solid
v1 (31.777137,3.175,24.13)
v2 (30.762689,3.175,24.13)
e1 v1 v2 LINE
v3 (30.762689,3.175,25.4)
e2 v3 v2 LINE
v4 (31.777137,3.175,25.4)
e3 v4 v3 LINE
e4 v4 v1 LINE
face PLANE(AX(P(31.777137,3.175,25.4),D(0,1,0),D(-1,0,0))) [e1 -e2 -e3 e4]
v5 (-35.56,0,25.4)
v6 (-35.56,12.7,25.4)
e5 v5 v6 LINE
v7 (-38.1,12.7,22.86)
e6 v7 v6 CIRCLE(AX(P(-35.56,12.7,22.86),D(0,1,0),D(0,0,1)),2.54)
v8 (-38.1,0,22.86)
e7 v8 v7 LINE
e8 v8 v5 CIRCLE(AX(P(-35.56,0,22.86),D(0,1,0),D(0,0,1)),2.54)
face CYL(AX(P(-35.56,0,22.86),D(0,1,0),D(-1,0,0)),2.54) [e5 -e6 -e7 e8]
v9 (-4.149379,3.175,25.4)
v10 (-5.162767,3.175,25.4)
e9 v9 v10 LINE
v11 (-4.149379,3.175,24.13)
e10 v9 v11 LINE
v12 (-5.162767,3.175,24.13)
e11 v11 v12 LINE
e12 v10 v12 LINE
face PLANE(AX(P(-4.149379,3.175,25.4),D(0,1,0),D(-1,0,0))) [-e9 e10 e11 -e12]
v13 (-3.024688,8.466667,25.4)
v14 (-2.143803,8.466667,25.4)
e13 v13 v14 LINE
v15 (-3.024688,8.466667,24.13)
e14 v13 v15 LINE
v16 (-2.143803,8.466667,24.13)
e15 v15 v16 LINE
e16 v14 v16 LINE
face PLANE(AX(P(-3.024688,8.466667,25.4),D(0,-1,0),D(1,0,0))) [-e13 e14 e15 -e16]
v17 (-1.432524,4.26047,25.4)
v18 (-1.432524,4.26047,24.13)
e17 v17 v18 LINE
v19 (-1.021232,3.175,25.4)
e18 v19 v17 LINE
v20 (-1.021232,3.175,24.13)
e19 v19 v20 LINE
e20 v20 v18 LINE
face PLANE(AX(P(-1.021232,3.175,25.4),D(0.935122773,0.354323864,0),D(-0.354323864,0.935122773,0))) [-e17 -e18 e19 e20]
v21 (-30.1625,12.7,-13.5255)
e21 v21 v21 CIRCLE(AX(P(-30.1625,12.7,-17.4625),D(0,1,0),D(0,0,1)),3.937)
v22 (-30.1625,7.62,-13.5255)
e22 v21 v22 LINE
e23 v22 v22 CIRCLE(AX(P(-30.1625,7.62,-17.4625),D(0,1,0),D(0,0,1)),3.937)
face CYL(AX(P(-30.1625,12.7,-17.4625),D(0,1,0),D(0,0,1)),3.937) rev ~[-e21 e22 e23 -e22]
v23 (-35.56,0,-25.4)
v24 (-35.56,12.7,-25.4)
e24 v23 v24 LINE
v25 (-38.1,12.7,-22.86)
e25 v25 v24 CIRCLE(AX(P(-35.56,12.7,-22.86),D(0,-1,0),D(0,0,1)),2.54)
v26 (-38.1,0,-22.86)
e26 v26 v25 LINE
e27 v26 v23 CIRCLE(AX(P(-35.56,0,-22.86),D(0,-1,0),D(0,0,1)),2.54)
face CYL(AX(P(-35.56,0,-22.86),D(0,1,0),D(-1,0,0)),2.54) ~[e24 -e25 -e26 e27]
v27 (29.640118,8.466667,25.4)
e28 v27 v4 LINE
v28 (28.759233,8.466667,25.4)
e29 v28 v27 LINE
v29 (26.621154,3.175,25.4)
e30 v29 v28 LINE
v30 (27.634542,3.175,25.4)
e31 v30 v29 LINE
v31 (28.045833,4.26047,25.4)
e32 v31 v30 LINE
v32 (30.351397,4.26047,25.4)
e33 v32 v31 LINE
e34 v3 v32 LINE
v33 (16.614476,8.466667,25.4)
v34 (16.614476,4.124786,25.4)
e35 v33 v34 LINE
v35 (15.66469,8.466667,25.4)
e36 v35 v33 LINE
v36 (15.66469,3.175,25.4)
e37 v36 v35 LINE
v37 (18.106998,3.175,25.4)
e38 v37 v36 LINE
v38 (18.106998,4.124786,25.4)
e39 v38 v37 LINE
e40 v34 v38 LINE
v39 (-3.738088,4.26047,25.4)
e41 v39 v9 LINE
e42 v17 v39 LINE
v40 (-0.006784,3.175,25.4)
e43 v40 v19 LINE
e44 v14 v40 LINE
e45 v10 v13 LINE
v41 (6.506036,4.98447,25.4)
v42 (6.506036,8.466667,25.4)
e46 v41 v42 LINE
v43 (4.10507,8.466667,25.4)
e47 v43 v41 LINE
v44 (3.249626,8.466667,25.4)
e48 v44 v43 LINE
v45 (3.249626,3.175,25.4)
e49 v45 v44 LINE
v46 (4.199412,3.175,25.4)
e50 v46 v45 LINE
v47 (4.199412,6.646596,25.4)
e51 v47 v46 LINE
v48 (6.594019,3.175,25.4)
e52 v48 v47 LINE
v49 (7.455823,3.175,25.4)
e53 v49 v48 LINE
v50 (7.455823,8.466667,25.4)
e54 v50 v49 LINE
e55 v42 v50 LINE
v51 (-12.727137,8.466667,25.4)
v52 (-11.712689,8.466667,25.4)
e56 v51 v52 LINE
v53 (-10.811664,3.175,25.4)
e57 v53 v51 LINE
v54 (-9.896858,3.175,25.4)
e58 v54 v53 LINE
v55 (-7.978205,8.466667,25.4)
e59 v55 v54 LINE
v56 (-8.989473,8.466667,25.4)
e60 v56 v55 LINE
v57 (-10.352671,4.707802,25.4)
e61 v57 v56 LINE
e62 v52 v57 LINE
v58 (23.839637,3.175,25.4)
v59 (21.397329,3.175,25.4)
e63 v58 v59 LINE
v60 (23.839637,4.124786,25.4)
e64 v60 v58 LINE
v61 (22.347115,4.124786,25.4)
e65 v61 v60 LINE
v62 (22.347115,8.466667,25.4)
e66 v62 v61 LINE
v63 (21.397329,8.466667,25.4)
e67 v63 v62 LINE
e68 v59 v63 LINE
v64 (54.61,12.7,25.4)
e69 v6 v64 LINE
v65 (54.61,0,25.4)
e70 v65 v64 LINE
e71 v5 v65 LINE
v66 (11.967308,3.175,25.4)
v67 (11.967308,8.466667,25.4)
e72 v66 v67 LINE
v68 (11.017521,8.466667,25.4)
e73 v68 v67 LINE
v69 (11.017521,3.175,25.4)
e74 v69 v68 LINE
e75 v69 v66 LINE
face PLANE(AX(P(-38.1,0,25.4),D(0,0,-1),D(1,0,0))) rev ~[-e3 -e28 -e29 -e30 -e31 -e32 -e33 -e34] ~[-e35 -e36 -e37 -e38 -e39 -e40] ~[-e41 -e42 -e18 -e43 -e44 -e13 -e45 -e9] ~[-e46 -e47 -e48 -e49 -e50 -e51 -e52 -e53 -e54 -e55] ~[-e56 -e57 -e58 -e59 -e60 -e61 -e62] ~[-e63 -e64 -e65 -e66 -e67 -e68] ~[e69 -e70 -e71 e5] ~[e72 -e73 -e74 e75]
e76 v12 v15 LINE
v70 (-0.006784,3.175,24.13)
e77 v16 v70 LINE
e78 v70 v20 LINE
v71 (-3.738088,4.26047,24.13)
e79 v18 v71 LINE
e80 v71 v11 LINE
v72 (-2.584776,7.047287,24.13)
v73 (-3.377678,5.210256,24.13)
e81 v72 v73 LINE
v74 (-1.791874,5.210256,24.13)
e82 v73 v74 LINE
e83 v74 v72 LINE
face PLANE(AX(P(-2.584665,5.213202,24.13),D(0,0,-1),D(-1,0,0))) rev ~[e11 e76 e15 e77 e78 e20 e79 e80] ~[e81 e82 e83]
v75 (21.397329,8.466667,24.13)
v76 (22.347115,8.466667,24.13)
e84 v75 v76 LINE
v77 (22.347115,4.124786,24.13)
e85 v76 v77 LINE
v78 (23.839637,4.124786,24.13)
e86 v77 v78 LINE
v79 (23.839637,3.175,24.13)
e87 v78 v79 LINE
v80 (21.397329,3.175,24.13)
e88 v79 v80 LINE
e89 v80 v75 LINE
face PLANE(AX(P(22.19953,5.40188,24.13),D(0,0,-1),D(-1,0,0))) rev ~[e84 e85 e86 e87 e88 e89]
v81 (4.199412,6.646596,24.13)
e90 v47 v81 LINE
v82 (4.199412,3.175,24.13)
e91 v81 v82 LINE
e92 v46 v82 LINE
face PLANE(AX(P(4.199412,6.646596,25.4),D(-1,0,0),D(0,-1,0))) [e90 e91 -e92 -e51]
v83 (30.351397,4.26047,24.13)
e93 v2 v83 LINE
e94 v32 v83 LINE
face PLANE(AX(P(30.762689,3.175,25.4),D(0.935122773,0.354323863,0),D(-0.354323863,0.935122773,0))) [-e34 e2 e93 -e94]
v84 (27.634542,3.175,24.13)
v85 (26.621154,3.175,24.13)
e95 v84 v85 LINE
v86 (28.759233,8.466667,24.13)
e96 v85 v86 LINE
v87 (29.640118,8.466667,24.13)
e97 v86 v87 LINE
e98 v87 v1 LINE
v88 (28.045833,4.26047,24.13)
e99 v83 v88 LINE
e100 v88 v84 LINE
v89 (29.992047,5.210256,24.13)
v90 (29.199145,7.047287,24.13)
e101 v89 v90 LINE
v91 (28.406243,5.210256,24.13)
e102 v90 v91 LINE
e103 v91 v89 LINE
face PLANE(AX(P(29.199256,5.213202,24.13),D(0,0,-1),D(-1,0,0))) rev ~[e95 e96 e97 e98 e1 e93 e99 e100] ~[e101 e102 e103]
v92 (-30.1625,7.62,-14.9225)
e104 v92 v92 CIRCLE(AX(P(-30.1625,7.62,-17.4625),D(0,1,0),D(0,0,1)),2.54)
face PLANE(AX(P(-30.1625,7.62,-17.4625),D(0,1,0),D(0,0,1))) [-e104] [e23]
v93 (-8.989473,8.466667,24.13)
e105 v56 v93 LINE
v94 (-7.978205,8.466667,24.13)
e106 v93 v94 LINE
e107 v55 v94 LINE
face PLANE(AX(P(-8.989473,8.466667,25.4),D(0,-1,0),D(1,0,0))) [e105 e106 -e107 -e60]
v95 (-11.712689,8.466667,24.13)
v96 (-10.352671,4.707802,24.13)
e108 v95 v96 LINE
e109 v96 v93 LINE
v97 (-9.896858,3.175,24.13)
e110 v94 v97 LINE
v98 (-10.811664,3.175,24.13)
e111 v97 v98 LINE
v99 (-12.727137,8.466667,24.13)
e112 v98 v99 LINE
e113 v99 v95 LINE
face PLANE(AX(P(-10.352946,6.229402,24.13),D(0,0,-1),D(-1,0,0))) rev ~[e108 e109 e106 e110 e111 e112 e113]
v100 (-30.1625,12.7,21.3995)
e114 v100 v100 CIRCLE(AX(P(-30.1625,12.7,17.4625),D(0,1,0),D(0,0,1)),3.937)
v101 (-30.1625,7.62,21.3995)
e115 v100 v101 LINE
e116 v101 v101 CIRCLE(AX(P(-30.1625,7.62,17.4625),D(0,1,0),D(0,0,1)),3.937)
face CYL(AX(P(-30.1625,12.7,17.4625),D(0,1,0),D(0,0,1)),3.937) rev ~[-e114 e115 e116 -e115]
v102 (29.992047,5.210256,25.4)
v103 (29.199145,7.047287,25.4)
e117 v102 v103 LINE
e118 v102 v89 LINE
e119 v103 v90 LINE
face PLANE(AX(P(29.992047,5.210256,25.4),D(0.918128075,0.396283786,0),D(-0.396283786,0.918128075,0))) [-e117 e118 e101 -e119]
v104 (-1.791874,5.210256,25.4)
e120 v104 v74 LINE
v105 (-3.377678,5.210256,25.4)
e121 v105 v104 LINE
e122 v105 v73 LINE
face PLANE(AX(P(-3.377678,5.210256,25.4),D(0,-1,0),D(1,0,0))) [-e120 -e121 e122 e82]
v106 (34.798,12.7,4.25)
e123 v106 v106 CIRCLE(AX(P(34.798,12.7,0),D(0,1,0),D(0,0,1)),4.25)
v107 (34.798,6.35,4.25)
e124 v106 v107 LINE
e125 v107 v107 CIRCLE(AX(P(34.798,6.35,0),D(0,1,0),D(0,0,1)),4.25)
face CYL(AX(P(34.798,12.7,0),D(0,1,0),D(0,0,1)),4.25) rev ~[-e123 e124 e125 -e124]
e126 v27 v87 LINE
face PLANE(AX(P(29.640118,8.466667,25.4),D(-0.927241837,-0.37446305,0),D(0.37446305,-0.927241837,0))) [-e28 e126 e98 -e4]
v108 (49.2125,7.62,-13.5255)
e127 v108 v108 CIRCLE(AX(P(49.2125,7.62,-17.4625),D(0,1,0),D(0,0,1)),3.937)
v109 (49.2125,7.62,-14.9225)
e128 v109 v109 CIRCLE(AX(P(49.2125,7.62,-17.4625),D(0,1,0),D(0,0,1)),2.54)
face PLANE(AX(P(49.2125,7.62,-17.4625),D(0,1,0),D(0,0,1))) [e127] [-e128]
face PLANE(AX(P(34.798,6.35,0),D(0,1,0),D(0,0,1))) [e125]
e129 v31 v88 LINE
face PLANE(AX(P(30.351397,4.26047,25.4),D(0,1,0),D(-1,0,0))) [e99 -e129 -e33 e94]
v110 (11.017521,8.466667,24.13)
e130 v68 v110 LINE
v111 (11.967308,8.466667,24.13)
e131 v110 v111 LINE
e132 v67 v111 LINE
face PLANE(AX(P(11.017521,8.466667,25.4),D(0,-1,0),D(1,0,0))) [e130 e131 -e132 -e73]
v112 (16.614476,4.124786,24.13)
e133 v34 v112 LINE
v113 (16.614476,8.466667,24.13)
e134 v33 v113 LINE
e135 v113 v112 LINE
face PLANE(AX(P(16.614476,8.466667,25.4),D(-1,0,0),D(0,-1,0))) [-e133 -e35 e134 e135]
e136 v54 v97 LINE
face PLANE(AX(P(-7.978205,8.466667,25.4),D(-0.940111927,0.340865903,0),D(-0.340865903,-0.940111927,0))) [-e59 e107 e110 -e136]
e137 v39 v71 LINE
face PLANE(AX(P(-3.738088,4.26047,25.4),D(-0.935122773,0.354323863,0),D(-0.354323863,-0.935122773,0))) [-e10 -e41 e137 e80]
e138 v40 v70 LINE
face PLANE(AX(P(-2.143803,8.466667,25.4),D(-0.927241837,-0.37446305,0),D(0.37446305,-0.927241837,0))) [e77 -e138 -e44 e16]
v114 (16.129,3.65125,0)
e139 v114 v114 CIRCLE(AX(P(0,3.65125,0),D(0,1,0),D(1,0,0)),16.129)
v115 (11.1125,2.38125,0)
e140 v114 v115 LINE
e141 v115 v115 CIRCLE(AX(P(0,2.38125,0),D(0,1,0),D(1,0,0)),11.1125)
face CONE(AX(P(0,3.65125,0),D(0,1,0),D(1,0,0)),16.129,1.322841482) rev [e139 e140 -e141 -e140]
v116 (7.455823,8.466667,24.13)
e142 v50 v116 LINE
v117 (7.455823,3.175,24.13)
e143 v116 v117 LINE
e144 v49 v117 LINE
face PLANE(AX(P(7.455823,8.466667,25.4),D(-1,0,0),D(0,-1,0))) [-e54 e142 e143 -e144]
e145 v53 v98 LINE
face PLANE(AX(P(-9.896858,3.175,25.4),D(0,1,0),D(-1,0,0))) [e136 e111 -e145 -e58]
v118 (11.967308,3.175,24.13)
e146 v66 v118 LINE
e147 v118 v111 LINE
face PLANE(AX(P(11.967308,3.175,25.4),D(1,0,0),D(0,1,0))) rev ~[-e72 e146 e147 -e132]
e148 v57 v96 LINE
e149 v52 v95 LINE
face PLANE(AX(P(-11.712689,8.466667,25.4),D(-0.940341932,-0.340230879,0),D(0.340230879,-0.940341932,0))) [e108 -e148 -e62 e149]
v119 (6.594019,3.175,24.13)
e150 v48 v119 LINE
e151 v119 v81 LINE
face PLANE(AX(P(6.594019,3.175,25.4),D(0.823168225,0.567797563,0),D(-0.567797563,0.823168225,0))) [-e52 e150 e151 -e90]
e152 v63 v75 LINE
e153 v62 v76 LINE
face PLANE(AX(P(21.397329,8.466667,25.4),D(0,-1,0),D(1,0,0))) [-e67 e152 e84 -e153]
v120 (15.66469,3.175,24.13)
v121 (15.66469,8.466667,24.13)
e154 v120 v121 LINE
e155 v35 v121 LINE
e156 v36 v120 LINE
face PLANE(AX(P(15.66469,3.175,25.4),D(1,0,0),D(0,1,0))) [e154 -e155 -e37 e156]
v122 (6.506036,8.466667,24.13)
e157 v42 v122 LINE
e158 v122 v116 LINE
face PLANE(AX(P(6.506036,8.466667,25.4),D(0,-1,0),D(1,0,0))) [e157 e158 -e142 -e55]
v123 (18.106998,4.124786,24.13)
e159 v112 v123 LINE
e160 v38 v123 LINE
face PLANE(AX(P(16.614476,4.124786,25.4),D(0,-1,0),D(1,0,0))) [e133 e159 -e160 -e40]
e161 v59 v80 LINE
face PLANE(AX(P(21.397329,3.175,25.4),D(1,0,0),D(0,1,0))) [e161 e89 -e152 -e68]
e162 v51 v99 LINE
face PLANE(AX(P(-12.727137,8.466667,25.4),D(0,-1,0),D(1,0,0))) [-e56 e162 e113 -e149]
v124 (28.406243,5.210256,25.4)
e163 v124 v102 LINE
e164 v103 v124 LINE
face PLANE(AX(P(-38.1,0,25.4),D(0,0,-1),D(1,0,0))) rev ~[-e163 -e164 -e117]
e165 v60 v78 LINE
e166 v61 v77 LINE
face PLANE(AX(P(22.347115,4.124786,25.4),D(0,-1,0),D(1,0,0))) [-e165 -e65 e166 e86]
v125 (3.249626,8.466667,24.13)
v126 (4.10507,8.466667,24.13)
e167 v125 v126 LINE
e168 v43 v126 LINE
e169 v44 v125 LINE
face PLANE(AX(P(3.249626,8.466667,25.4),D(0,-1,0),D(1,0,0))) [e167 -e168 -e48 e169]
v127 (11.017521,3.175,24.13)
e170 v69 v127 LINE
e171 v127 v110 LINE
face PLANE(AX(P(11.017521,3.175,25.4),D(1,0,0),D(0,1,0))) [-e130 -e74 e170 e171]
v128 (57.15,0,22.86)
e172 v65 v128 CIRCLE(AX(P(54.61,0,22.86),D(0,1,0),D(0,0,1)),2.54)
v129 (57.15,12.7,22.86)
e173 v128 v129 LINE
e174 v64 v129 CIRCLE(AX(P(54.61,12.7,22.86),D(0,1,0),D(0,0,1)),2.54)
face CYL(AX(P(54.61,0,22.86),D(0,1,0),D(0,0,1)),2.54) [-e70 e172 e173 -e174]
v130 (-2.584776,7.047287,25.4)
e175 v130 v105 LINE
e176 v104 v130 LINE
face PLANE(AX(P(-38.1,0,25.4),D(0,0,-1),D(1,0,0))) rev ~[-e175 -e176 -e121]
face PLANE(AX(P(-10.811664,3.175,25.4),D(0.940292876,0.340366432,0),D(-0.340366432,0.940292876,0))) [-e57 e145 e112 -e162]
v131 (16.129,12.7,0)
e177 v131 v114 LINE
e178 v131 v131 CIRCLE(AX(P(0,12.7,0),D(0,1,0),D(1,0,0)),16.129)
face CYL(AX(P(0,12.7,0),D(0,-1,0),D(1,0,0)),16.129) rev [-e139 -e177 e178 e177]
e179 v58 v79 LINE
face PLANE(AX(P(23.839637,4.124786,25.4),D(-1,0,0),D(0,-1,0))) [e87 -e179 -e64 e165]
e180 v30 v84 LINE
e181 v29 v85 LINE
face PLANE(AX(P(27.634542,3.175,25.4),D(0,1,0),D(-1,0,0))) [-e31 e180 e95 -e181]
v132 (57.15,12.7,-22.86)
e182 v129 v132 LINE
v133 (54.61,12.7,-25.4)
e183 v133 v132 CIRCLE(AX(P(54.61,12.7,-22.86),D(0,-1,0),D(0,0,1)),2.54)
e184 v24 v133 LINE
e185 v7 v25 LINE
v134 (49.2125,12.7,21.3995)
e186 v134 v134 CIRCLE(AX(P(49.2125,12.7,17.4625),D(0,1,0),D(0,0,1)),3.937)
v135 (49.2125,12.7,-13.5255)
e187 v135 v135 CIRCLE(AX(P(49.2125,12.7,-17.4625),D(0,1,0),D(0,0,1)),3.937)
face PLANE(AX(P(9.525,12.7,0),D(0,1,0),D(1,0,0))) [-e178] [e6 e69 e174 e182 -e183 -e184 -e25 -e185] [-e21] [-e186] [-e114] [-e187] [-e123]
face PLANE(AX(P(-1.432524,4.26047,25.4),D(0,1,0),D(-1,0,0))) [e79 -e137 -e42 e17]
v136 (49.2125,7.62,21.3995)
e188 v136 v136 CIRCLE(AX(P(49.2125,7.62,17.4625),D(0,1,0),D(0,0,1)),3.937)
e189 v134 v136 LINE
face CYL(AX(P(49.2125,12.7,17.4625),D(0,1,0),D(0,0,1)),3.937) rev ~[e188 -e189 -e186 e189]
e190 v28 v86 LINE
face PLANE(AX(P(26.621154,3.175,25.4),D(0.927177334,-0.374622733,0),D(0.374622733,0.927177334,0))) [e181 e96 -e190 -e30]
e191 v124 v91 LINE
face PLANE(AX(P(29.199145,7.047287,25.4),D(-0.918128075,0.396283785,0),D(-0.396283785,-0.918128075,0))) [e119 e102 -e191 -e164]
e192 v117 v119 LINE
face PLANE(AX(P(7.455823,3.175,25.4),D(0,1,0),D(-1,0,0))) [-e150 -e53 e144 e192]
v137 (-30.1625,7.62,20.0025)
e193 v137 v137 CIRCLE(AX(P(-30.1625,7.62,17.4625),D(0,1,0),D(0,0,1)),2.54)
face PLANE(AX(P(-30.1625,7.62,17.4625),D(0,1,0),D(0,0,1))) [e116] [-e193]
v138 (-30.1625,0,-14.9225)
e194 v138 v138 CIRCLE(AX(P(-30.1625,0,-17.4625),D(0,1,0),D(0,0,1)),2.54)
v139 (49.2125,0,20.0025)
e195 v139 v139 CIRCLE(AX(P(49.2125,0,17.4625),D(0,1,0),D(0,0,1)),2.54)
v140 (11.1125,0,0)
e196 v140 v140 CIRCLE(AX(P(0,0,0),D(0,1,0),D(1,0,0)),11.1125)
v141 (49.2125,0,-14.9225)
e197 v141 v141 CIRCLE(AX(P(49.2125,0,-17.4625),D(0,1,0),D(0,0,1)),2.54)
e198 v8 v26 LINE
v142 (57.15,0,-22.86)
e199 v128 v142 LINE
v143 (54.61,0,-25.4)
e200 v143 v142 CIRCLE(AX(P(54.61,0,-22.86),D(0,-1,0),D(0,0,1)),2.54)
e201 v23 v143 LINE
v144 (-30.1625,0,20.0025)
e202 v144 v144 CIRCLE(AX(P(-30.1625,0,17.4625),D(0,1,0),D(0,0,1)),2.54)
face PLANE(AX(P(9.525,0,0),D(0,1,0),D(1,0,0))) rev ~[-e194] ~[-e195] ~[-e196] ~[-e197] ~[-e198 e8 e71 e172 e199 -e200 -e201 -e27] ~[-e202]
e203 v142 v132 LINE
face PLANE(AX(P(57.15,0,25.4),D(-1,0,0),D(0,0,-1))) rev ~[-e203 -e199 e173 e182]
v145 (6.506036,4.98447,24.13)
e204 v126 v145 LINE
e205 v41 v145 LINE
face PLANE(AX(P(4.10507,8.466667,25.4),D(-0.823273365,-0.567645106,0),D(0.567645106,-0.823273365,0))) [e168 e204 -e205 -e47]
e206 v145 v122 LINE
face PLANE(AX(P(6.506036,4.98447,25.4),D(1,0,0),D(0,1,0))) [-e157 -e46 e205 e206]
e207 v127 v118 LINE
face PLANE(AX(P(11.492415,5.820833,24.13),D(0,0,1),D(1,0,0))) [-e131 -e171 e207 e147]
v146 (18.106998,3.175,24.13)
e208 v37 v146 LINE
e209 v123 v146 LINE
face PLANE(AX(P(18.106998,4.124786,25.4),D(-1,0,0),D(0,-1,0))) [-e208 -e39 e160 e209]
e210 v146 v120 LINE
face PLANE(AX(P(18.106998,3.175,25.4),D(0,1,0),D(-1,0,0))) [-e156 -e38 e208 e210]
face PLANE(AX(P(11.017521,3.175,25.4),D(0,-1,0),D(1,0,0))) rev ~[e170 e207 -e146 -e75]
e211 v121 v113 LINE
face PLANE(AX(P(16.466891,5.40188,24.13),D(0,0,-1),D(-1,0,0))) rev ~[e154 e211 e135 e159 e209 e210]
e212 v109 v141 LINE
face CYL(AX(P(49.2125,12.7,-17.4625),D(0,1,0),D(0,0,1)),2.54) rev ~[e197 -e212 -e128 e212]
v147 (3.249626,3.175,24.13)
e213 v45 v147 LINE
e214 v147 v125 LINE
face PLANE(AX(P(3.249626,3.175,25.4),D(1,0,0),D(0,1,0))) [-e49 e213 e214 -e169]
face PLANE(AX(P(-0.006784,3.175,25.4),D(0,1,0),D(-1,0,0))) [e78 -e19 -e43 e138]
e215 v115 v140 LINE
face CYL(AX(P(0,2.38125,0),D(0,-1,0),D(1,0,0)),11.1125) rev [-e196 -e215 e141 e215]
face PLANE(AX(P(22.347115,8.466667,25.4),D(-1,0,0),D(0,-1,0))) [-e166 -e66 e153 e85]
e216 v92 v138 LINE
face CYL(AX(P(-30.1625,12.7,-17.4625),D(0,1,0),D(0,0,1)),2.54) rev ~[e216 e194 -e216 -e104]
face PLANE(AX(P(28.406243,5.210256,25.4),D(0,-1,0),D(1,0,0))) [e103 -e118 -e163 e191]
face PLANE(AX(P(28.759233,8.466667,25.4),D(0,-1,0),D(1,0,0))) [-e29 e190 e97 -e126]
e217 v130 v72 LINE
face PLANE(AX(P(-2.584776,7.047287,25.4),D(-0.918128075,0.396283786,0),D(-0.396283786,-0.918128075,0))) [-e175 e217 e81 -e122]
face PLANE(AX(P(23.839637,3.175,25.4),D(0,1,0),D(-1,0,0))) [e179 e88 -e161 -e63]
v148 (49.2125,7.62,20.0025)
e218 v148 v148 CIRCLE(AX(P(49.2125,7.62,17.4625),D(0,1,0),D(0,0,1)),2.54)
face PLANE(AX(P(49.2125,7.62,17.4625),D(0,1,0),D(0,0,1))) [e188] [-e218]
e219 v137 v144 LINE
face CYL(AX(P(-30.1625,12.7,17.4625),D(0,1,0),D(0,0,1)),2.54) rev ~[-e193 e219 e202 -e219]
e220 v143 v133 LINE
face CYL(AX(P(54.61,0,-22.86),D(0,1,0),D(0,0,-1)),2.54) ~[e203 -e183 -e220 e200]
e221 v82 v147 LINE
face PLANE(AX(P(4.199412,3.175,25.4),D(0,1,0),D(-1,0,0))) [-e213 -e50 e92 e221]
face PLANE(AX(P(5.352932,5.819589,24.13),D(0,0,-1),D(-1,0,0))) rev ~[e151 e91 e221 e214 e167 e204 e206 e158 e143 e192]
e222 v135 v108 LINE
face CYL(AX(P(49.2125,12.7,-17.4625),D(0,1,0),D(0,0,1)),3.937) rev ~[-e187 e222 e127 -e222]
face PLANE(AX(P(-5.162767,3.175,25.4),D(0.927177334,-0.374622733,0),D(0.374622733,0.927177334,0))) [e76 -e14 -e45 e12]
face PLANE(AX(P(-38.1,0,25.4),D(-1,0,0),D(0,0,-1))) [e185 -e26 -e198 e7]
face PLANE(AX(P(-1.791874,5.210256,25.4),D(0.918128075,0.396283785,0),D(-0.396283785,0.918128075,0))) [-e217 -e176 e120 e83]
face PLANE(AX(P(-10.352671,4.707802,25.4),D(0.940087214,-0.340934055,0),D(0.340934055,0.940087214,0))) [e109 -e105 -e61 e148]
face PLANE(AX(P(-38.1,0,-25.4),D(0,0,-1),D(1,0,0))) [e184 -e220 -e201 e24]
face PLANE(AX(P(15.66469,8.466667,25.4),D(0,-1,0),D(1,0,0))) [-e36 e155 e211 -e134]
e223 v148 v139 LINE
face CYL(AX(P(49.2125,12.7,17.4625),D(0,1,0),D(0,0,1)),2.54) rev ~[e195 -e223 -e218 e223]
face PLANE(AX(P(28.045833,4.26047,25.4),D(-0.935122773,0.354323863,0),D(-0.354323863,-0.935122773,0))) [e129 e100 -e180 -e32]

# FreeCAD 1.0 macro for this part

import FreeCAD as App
import Part
import Sketcher
Q = App.Units.Quantity


def edges_at(feature, points):
    """Names of the edges that pass closest to the given points."""
    edges = feature.Shape.Edges
    near = lambda p: min(range(len(edges)), key=lambda i: edges[i].distToShape(Part.Vertex(*p))[0])
    return sorted({f"Edge{near(p) + 1}" for p in points})

doc = App.newDocument("Part")
params = doc.addObject("Spreadsheet::Sheet", "Params")
for row, (alias, value) in enumerate([
    ("sketch1_height", "2 in"),
    ("sketch1_width", "3.75 in"),
    ("pad1_length", "0.5 in"),
    ("sketch2_diameter", "0.2 in"),
    ("fillet_radius", "0.1 in"),
    ("sketch3_height", "0.5 in"),
    ("sketch3_width", "0.635 in"),
    ("sketch3_width2", "0.4375 in"),
    ("sketch3_height2", "0.09375 in"),
    ("groove_angle", "360 deg"),
    ("pocket2_length", "0.25 in"),
    ("pocket3_length", "0.05 in"),
    ("sketch6_diameter", "0.31 in"),
    ("pocket4_length", "0.2 in"),
], start=1):
    params.set(f"A{row}", alias)
    params.set(f"B{row}", "=" + value)
    params.setAlias(f"B{row}", alias)

body = doc.addObject("PartDesign::Body", "Body")

# Sketch on XZ plane
sketch1 = doc.addObject("Sketcher::SketchObject", "Sketch")
body.addObject(sketch1)
sketch1.AttachmentSupport = (doc.XZ_Plane, [""])
sketch1.MapMode = "FlatFace"
sketch1.addGeometry([
    Part.LineSegment(App.Vector(-38.1, -25.4, 0), App.Vector(-38.1, 25.4, 0)),
    Part.LineSegment(App.Vector(-38.1, 25.4, 0), App.Vector(57.15, 25.4, 0)),
    Part.LineSegment(App.Vector(57.15, 25.4, 0), App.Vector(57.15, -25.4, 0)),
    Part.LineSegment(App.Vector(57.15, -25.4, 0), App.Vector(-38.1, -25.4, 0)),
], False)
sketch1.addConstraint([
    Sketcher.Constraint("Coincident", 0, 2, 1, 1),
    Sketcher.Constraint("Coincident", 1, 2, 2, 1),
    Sketcher.Constraint("Coincident", 2, 2, 3, 1),
    Sketcher.Constraint("Coincident", 3, 2, 0, 1),
    Sketcher.Constraint("Vertical", 0),
    Sketcher.Constraint("Horizontal", 1),
    Sketcher.Constraint("Vertical", 2),
    Sketcher.Constraint("Horizontal", 3),
    Sketcher.Constraint("DistanceY", 0, 1, 0, 2, Q("2 in")),
    Sketcher.Constraint("DistanceY", -1, 1, 0, 2, Q("1 in")),
    Sketcher.Constraint("DistanceX", 1, 1, 1, 2, Q("3.75 in")),
    Sketcher.Constraint("DistanceX", 0, 2, -1, 1, Q("1.5 in")),
])
sketch1.setExpression("Constraints[8]", "Params.sketch1_height")
sketch1.setExpression("Constraints[10]", "Params.sketch1_width")
pad1 = doc.addObject("PartDesign::Pad", "Pad")
body.addObject(pad1)
pad1.Profile = sketch1
pad1.setExpression("Length", "Params.pad1_length")
pad1.Reversed = True

# Sketch on XZ plane
sketch2 = doc.addObject("Sketcher::SketchObject", "Sketch001")
body.addObject(sketch2)
sketch2.AttachmentSupport = (doc.XZ_Plane, [""])
sketch2.MapMode = "FlatFace"
sketch2.AttachmentOffset = App.Placement(App.Vector(0, 0, -0.5 * 25.4), App.Rotation())
sketch2.addGeometry([
    Part.Circle(App.Vector(-30.1625, -17.4625, 0), App.Vector(0, 0, 1), 2.54),
    Part.Circle(App.Vector(49.2125, -17.4625, 0), App.Vector(0, 0, 1), 2.54),
    Part.Circle(App.Vector(49.2125, 17.4625, 0), App.Vector(0, 0, 1), 2.54),
    Part.Circle(App.Vector(-30.1625, 17.4625, 0), App.Vector(0, 0, 1), 2.54),
], False)
sketch2.addConstraint([
    Sketcher.Constraint("Equal", 0, 1),
    Sketcher.Constraint("Equal", 1, 2),
    Sketcher.Constraint("Equal", 2, 3),
    Sketcher.Constraint("Symmetric", 1, 3, 2, 3, -1),
    Sketcher.Constraint("Symmetric", 0, 3, 3, 3, -1),
    Sketcher.Constraint("Horizontal", 0, 3, 1, 3),
    Sketcher.Constraint("Diameter", 0, Q("0.2 in")),
    Sketcher.Constraint("DistanceX", 0, 3, -1, 1, Q("1.1875 in")),
    Sketcher.Constraint("DistanceY", 0, 3, -1, 1, Q("0.6875 in")),
    Sketcher.Constraint("DistanceX", -1, 1, 1, 3, Q("1.9375 in")),
])
sketch2.setExpression("Constraints[6]", "Params.sketch2_diameter")
pocket1 = doc.addObject("PartDesign::Pocket", "Pocket")
body.addObject(pocket1)
pocket1.Profile = sketch2
pocket1.Type = "ThroughAll"
pocket1.Reversed = True
doc.recompute()

fillet = doc.addObject("PartDesign::Fillet", "Fillet")
body.addObject(fillet)
fillet.Base = (pocket1, edges_at(pocket1, [
    (57.15, 6.35, 25.4),
    (-38.1, 6.35, 25.4),
    (-38.1, 6.35, -25.4),
    (57.15, 6.35, -25.4),
]))
fillet.setExpression("Radius", "Params.fillet_radius")

# Sketch on XY plane
sketch3 = doc.addObject("Sketcher::SketchObject", "Sketch002")
body.addObject(sketch3)
sketch3.AttachmentSupport = (doc.XY_Plane, [""])
sketch3.MapMode = "FlatFace"
sketch3.addGeometry([
    Part.LineSegment(App.Vector(0, 0, 0), App.Vector(0, 12.7, 0)),  # 0
    Part.LineSegment(App.Vector(0, 12.7, 0), App.Vector(-16.129, 12.7, 0)),  # 1
    Part.LineSegment(App.Vector(-16.129, 12.7, 0), App.Vector(-16.129, 3.65125, 0)),  # 2
    Part.LineSegment(App.Vector(-16.129, 3.65125, 0), App.Vector(-11.1125, 2.38125, 0)),  # 3
    Part.LineSegment(App.Vector(-11.1125, 2.38125, 0), App.Vector(-11.1125, 0, 0)),  # 4
    Part.LineSegment(App.Vector(-11.1125, 0, 0), App.Vector(0, 0, 0)),  # 5
], False)
sketch3.addConstraint([
    Sketcher.Constraint("Coincident", 0, 2, 1, 1),
    Sketcher.Constraint("Coincident", 1, 2, 2, 1),
    Sketcher.Constraint("Coincident", 2, 2, 3, 1),
    Sketcher.Constraint("Coincident", 3, 2, 4, 1),
    Sketcher.Constraint("Coincident", 4, 2, 5, 1),
    Sketcher.Constraint("Coincident", 5, 2, 0, 1),
    Sketcher.Constraint("Vertical", 0),
    Sketcher.Constraint("Horizontal", 1),
    Sketcher.Constraint("Vertical", 2),
    Sketcher.Constraint("Vertical", 4),
    Sketcher.Constraint("Horizontal", 5),
    Sketcher.Constraint("Coincident", 5, 2, -1, 1),
    Sketcher.Constraint("DistanceY", 0, 1, 0, 2, Q("0.5 in")),
    Sketcher.Constraint("DistanceX", 1, 2, 1, 1, Q("0.635 in")),
    Sketcher.Constraint("DistanceX", 5, 1, 5, 2, Q("0.4375 in")),
    Sketcher.Constraint("DistanceY", 4, 2, 4, 1, Q("0.09375 in")),
    Sketcher.Constraint("DistanceY", 3, 2, 2, 2, Q("0.05 in")),
])
sketch3.setExpression("Constraints[12]", "Params.sketch3_height")
sketch3.setExpression("Constraints[13]", "Params.sketch3_width")
sketch3.setExpression("Constraints[14]", "Params.sketch3_width2")
sketch3.setExpression("Constraints[15]", "Params.sketch3_height2")
groove = doc.addObject("PartDesign::Groove", "Groove")
body.addObject(groove)
groove.Profile = sketch3
groove.ReferenceAxis = (sketch3, ["V_Axis"])
groove.setExpression("Angle", "Params.groove_angle")

# Sketch on XZ plane
sketch4 = doc.addObject("Sketcher::SketchObject", "Sketch003")
body.addObject(sketch4)
sketch4.AttachmentSupport = (doc.XZ_Plane, [""])
sketch4.MapMode = "FlatFace"
sketch4.AttachmentOffset = App.Placement(App.Vector(0, 0, -0.5 * 25.4), App.Rotation())
sketch4.addGeometry(Part.Circle(App.Vector(34.798, 0, 0), App.Vector(0, 0, 1), 4.25), False)
sketch4.addConstraint([
    Sketcher.Constraint("PointOnObject", 0, 3, -1),
    Sketcher.Constraint("Diameter", 0, 8.5),
    Sketcher.Constraint("DistanceX", -1, 1, 0, 3, Q("1.37 in")),
])
pocket2 = doc.addObject("PartDesign::Pocket", "Pocket001")
body.addObject(pocket2)
pocket2.Profile = sketch4
pocket2.setExpression("Length", "Params.pocket2_length")
pocket2.Reversed = True

# Sketch on XY plane
sketch5 = doc.addObject("Sketcher::SketchObject", "Sketch004")
body.addObject(sketch5)
sketch5.AttachmentSupport = (doc.XY_Plane, [""])
sketch5.MapMode = "FlatFace"
sketch5.AttachmentOffset = App.Placement(App.Vector(0, 0, 1 * 25.4), App.Rotation())
sketch5.addGeometry([
    Part.LineSegment(App.Vector(-11.712689, 8.466667, 0), App.Vector(-12.727137, 8.466667, 0)),  # 0
    Part.LineSegment(App.Vector(-12.727137, 8.466667, 0), App.Vector(-10.811664, 3.175, 0)),  # 1
    Part.LineSegment(App.Vector(-10.811664, 3.175, 0), App.Vector(-9.896858, 3.175, 0)),  # 2
    Part.LineSegment(App.Vector(-9.896858, 3.175, 0), App.Vector(-7.978205, 8.466667, 0)),  # 3
    Part.LineSegment(App.Vector(-7.978205, 8.466667, 0), App.Vector(-8.989473, 8.466667, 0)),  # 4
    Part.LineSegment(App.Vector(-8.989473, 8.466667, 0), App.Vector(-10.352671, 4.707802, 0)),  # 5
    Part.LineSegment(App.Vector(-10.352671, 4.707802, 0), App.Vector(-11.712689, 8.466667, 0)),  # 6
    Part.LineSegment(App.Vector(-2.143803, 8.466667, 0), App.Vector(-3.024688, 8.466667, 0)),  # 7
    Part.LineSegment(App.Vector(-3.024688, 8.466667, 0), App.Vector(-5.162767, 3.175, 0)),  # 8
    Part.LineSegment(App.Vector(-5.162767, 3.175, 0), App.Vector(-4.149379, 3.175, 0)),  # 9
    Part.LineSegment(App.Vector(-4.149379, 3.175, 0), App.Vector(-3.738088, 4.26047, 0)),  # 10
    Part.LineSegment(App.Vector(-3.738088, 4.26047, 0), App.Vector(-1.432524, 4.26047, 0)),  # 11
    Part.LineSegment(App.Vector(-1.432524, 4.26047, 0), App.Vector(-1.021232, 3.175, 0)),  # 12
    Part.LineSegment(App.Vector(-1.021232, 3.175, 0), App.Vector(-0.006784, 3.175, 0)),  # 13
    Part.LineSegment(App.Vector(-0.006784, 3.175, 0), App.Vector(-2.143803, 8.466667, 0)),  # 14
    Part.LineSegment(App.Vector(-2.584776, 7.047287, 0), App.Vector(-1.791874, 5.210256, 0)),  # 15
    Part.LineSegment(App.Vector(-1.791874, 5.210256, 0), App.Vector(-3.377678, 5.210256, 0)),  # 16
    Part.LineSegment(App.Vector(-3.377678, 5.210256, 0), App.Vector(-2.584776, 7.047287, 0)),  # 17
    Part.LineSegment(App.Vector(4.10507, 8.466667, 0), App.Vector(3.249626, 8.466667, 0)),  # 18
    Part.LineSegment(App.Vector(3.249626, 8.466667, 0), App.Vector(3.249626, 3.175, 0)),  # 19
    Part.LineSegment(App.Vector(3.249626, 3.175, 0), App.Vector(4.199412, 3.175, 0)),  # 20
    Part.LineSegment(App.Vector(4.199412, 3.175, 0), App.Vector(4.199412, 6.646596, 0)),  # 21
    Part.LineSegment(App.Vector(4.199412, 6.646596, 0), App.Vector(6.594019, 3.175, 0)),  # 22
    Part.LineSegment(App.Vector(6.594019, 3.175, 0), App.Vector(7.455823, 3.175, 0)),  # 23
    Part.LineSegment(App.Vector(7.455823, 3.175, 0), App.Vector(7.455823, 8.466667, 0)),  # 24
    Part.LineSegment(App.Vector(7.455823, 8.466667, 0), App.Vector(6.506036, 8.466667, 0)),  # 25
    Part.LineSegment(App.Vector(6.506036, 8.466667, 0), App.Vector(6.506036, 4.98447, 0)),  # 26
    Part.LineSegment(App.Vector(6.506036, 4.98447, 0), App.Vector(4.10507, 8.466667, 0)),  # 27
    Part.LineSegment(App.Vector(11.017521, 8.466667, 0), App.Vector(11.017521, 3.175, 0)),  # 28
    Part.LineSegment(App.Vector(11.017521, 3.175, 0), App.Vector(11.967308, 3.175, 0)),  # 29
    Part.LineSegment(App.Vector(11.967308, 3.175, 0), App.Vector(11.967308, 8.466667, 0)),  # 30
    Part.LineSegment(App.Vector(11.967308, 8.466667, 0), App.Vector(11.017521, 8.466667, 0)),  # 31
    Part.LineSegment(App.Vector(16.614476, 8.466667, 0), App.Vector(15.66469, 8.466667, 0)),  # 32
    Part.LineSegment(App.Vector(15.66469, 8.466667, 0), App.Vector(15.66469, 3.175, 0)),  # 33
    Part.LineSegment(App.Vector(15.66469, 3.175, 0), App.Vector(18.106998, 3.175, 0)),  # 34
    Part.LineSegment(App.Vector(18.106998, 3.175, 0), App.Vector(18.106998, 4.124786, 0)),  # 35
    Part.LineSegment(App.Vector(18.106998, 4.124786, 0), App.Vector(16.614476, 4.124786, 0)),  # 36
    Part.LineSegment(App.Vector(16.614476, 4.124786, 0), App.Vector(16.614476, 8.466667, 0)),  # 37
    Part.LineSegment(App.Vector(22.347115, 8.466667, 0), App.Vector(21.397329, 8.466667, 0)),  # 38
    Part.LineSegment(App.Vector(21.397329, 8.466667, 0), App.Vector(21.397329, 3.175, 0)),  # 39
    Part.LineSegment(App.Vector(21.397329, 3.175, 0), App.Vector(23.839637, 3.175, 0)),  # 40
    Part.LineSegment(App.Vector(23.839637, 3.175, 0), App.Vector(23.839637, 4.124786, 0)),  # 41
    Part.LineSegment(App.Vector(23.839637, 4.124786, 0), App.Vector(22.347115, 4.124786, 0)),  # 42
    Part.LineSegment(App.Vector(22.347115, 4.124786, 0), App.Vector(22.347115, 8.466667, 0)),  # 43
    Part.LineSegment(App.Vector(29.640118, 8.466667, 0), App.Vector(28.759233, 8.466667, 0)),  # 44
    Part.LineSegment(App.Vector(28.759233, 8.466667, 0), App.Vector(26.621154, 3.175, 0)),  # 45
    Part.LineSegment(App.Vector(26.621154, 3.175, 0), App.Vector(27.634542, 3.175, 0)),  # 46
    Part.LineSegment(App.Vector(27.634542, 3.175, 0), App.Vector(28.045833, 4.26047, 0)),  # 47
    Part.LineSegment(App.Vector(28.045833, 4.26047, 0), App.Vector(30.351397, 4.26047, 0)),  # 48
    Part.LineSegment(App.Vector(30.351397, 4.26047, 0), App.Vector(30.762689, 3.175, 0)),  # 49
    Part.LineSegment(App.Vector(30.762689, 3.175, 0), App.Vector(31.777137, 3.175, 0)),  # 50
    Part.LineSegment(App.Vector(31.777137, 3.175, 0), App.Vector(29.640118, 8.466667, 0)),  # 51
    Part.LineSegment(App.Vector(29.199145, 7.047287, 0), App.Vector(29.992047, 5.210256, 0)),  # 52
    Part.LineSegment(App.Vector(29.992047, 5.210256, 0), App.Vector(28.406243, 5.210256, 0)),  # 53
    Part.LineSegment(App.Vector(28.406243, 5.210256, 0), App.Vector(29.199145, 7.047287, 0)),  # 54
], False)
sketch5.addConstraint([
    Sketcher.Constraint("Coincident", 0, 2, 1, 1),
    Sketcher.Constraint("Coincident", 1, 2, 2, 1),
    Sketcher.Constraint("Coincident", 2, 2, 3, 1),
    Sketcher.Constraint("Coincident", 3, 2, 4, 1),
    Sketcher.Constraint("Coincident", 4, 2, 5, 1),
    Sketcher.Constraint("Coincident", 5, 2, 6, 1),
    Sketcher.Constraint("Coincident", 6, 2, 0, 1),
    Sketcher.Constraint("Coincident", 7, 2, 8, 1),
    Sketcher.Constraint("Coincident", 8, 2, 9, 1),
    Sketcher.Constraint("Coincident", 9, 2, 10, 1),
    Sketcher.Constraint("Coincident", 10, 2, 11, 1),
    Sketcher.Constraint("Coincident", 11, 2, 12, 1),
    Sketcher.Constraint("Coincident", 12, 2, 13, 1),
    Sketcher.Constraint("Coincident", 13, 2, 14, 1),
    Sketcher.Constraint("Coincident", 14, 2, 7, 1),
    Sketcher.Constraint("Coincident", 15, 2, 16, 1),
    Sketcher.Constraint("Coincident", 16, 2, 17, 1),
    Sketcher.Constraint("Coincident", 17, 2, 15, 1),
    Sketcher.Constraint("Coincident", 18, 2, 19, 1),
    Sketcher.Constraint("Coincident", 19, 2, 20, 1),
    Sketcher.Constraint("Coincident", 20, 2, 21, 1),
    Sketcher.Constraint("Coincident", 21, 2, 22, 1),
    Sketcher.Constraint("Coincident", 22, 2, 23, 1),
    Sketcher.Constraint("Coincident", 23, 2, 24, 1),
    Sketcher.Constraint("Coincident", 24, 2, 25, 1),
    Sketcher.Constraint("Coincident", 25, 2, 26, 1),
    Sketcher.Constraint("Coincident", 26, 2, 27, 1),
    Sketcher.Constraint("Coincident", 27, 2, 18, 1),
    Sketcher.Constraint("Coincident", 28, 2, 29, 1),
    Sketcher.Constraint("Coincident", 29, 2, 30, 1),
    Sketcher.Constraint("Coincident", 30, 2, 31, 1),
    Sketcher.Constraint("Coincident", 31, 2, 28, 1),
    Sketcher.Constraint("Coincident", 32, 2, 33, 1),
    Sketcher.Constraint("Coincident", 33, 2, 34, 1),
    Sketcher.Constraint("Coincident", 34, 2, 35, 1),
    Sketcher.Constraint("Coincident", 35, 2, 36, 1),
    Sketcher.Constraint("Coincident", 36, 2, 37, 1),
    Sketcher.Constraint("Coincident", 37, 2, 32, 1),
    Sketcher.Constraint("Coincident", 38, 2, 39, 1),
    Sketcher.Constraint("Coincident", 39, 2, 40, 1),
    Sketcher.Constraint("Coincident", 40, 2, 41, 1),
    Sketcher.Constraint("Coincident", 41, 2, 42, 1),
    Sketcher.Constraint("Coincident", 42, 2, 43, 1),
    Sketcher.Constraint("Coincident", 43, 2, 38, 1),
    Sketcher.Constraint("Coincident", 44, 2, 45, 1),
    Sketcher.Constraint("Coincident", 45, 2, 46, 1),
    Sketcher.Constraint("Coincident", 46, 2, 47, 1),
    Sketcher.Constraint("Coincident", 47, 2, 48, 1),
    Sketcher.Constraint("Coincident", 48, 2, 49, 1),
    Sketcher.Constraint("Coincident", 49, 2, 50, 1),
    Sketcher.Constraint("Coincident", 50, 2, 51, 1),
    Sketcher.Constraint("Coincident", 51, 2, 44, 1),
    Sketcher.Constraint("Coincident", 52, 2, 53, 1),
    Sketcher.Constraint("Coincident", 53, 2, 54, 1),
    Sketcher.Constraint("Coincident", 54, 2, 52, 1),
    Sketcher.Constraint("Horizontal", 0),
    Sketcher.Constraint("Horizontal", 2),
    Sketcher.Constraint("Horizontal", 4),
    Sketcher.Constraint("Horizontal", 7),
    Sketcher.Constraint("Horizontal", 9),
    Sketcher.Constraint("Horizontal", 11),
    Sketcher.Constraint("Horizontal", 13),
    Sketcher.Constraint("Horizontal", 16),
    Sketcher.Constraint("Horizontal", 18),
    Sketcher.Constraint("Vertical", 19),
    Sketcher.Constraint("Horizontal", 20),
    Sketcher.Constraint("Vertical", 21),
    Sketcher.Constraint("Horizontal", 23),
    Sketcher.Constraint("Vertical", 24),
    Sketcher.Constraint("Horizontal", 25),
    Sketcher.Constraint("Vertical", 26),
    Sketcher.Constraint("Vertical", 28),
    Sketcher.Constraint("Horizontal", 29),
    Sketcher.Constraint("Vertical", 30),
    Sketcher.Constraint("Horizontal", 31),
    Sketcher.Constraint("Horizontal", 32),
    Sketcher.Constraint("Vertical", 33),
    Sketcher.Constraint("Horizontal", 34),
    Sketcher.Constraint("Vertical", 35),
    Sketcher.Constraint("Horizontal", 36),
    Sketcher.Constraint("Vertical", 37),
    Sketcher.Constraint("Horizontal", 38),
    Sketcher.Constraint("Vertical", 39),
    Sketcher.Constraint("Horizontal", 40),
    Sketcher.Constraint("Vertical", 41),
    Sketcher.Constraint("Horizontal", 42),
    Sketcher.Constraint("Vertical", 43),
    Sketcher.Constraint("Horizontal", 44),
    Sketcher.Constraint("Horizontal", 46),
    Sketcher.Constraint("Horizontal", 48),
    Sketcher.Constraint("Horizontal", 50),
    Sketcher.Constraint("Horizontal", 53),
    Sketcher.Constraint("Parallel", 8, 45),
    Sketcher.Constraint("Parallel", 10, 47),
    Sketcher.Constraint("Parallel", 12, 49),
    Sketcher.Constraint("Parallel", 14, 51),
    Sketcher.Constraint("Parallel", 15, 52),
    Sketcher.Constraint("Parallel", 17, 54),
    Sketcher.Constraint("Horizontal", 0, 2, 3, 2),
    Sketcher.Constraint("Horizontal", 6, 2, 7, 2),
    Sketcher.Constraint("Horizontal", 2, 2, 8, 2),
    Sketcher.Constraint("Horizontal", 9, 2, 12, 2),
    Sketcher.Constraint("Horizontal", 14, 2, 18, 2),
    Sketcher.Constraint("Horizontal", 13, 2, 19, 2),
    Sketcher.Constraint("Horizontal", 20, 2, 22, 2),
    Sketcher.Constraint("Horizontal", 18, 2, 24, 2),
    Sketcher.Constraint("Horizontal", 23, 2, 28, 2),
    Sketcher.Constraint("Horizontal", 27, 2, 30, 2),
    Sketcher.Constraint("Horizontal", 31, 2, 32, 2),
    Sketcher.Constraint("Horizontal", 29, 2, 33, 2),
    Sketcher.Constraint("Horizontal", 37, 2, 38, 2),
    Sketcher.Constraint("Horizontal", 34, 2, 39, 2),
    Sketcher.Constraint("Horizontal", 36, 2, 41, 2),
    Sketcher.Constraint("Horizontal", 43, 2, 44, 2),
    Sketcher.Constraint("Horizontal", 40, 2, 45, 2),
    Sketcher.Constraint("Horizontal", 11, 2, 47, 2),
    Sketcher.Constraint("Horizontal", 46, 2, 49, 2),
    Sketcher.Constraint("Horizontal", 16, 2, 52, 2),
    Sketcher.Constraint("Horizontal", 17, 2, 54, 2),
    Sketcher.Constraint("Equal", 0, 13),
    Sketcher.Constraint("Equal", 20, 25),
    Sketcher.Constraint("Equal", 25, 29),
    Sketcher.Constraint("Equal", 31, 32),
    Sketcher.Constraint("Equal", 32, 38),
    Sketcher.Constraint("Equal", 34, 40),
    Sketcher.Constraint("Equal", 7, 44),
    Sketcher.Constraint("Equal", 9, 46),
    Sketcher.Constraint("Equal", 11, 48),
    Sketcher.Constraint("Equal", 38, 35),
    Sketcher.Constraint("Equal", 10, 12),
    Sketcher.Constraint("Equal", 15, 17),
    Sketcher.Constraint("DistanceY", -1, 1, 1, 2, Q("0.125 in")),
    Sketcher.Constraint("Distance", 10, Q("0.0456999 in")),
    Sketcher.Constraint("DistanceX", 0, 2, 0, 1, 1.014448),
    Sketcher.Constraint("DistanceX", 4, 2, 4, 1, 1.011268),
    Sketcher.Constraint("DistanceX", 9, 1, 9, 2, 1.013388),
    Sketcher.Constraint("DistanceX", 36, 2, 36, 1, 1.492521),
    Sketcher.Constraint("DistanceY", 37, 1, 37, 2, 4.34188),
    Sketcher.Constraint("DistanceX", 6, 2, 7, 2, 8.688001),
    Sketcher.Constraint("DistanceX", 10, 2, 7, 2, 0.7134),
    Sketcher.Constraint("DistanceX", 9, 2, 16, 2, 0.771701),
    Sketcher.Constraint("DistanceX", 17, 2, 15, 2, 0.792902),
    Sketcher.Constraint("DistanceX", 15, 2, 18, 2, 5.0415),
    Sketcher.Constraint("DistanceX", 23, 2, 28, 2, 3.561699),
    Sketcher.Constraint("DistanceX", 46, 2, 53, 2, 0.771701),
    Sketcher.Constraint("Distance", 1, 5.627679),
    Sketcher.Constraint("Distance", 5, 3.998421),
    Sketcher.Constraint("Distance", 14, 5.706889),
    Sketcher.Constraint("Distance", 22, 4.217359),
    Sketcher.Constraint("DistanceX", 2, 1, 2, 2, 0.914805),
    Sketcher.Constraint("DistanceX", 7, 2, 7, 1, 0.880884),
    Sketcher.Constraint("DistanceX", 11, 1, 11, 2, 2.305564),
    Sketcher.Constraint("DistanceX", 18, 2, 18, 1, 0.855444),
    Sketcher.Constraint("DistanceX", 20, 1, 20, 2, 0.949786),
    Sketcher.Constraint("DistanceX", 23, 1, 23, 2, 0.861804),
    Sketcher.Constraint("DistanceY", 21, 1, 21, 2, 3.471596),
    Sketcher.Constraint("DistanceY", 26, 2, 26, 1, 3.482197),
    Sketcher.Constraint("DistanceX", 2, 2, -1, 1, 9.896858),
    Sketcher.Constraint("DistanceX", 5, 2, -1, 1, 10.352671),
    Sketcher.Constraint("DistanceX", -1, 1, 32, 2, 15.66469),
    Sketcher.Constraint("DistanceX", -1, 1, 38, 2, 21.397329),
    Sketcher.Constraint("DistanceX", -1, 1, 46, 2, 27.634542),
    Sketcher.Constraint("DistanceX", 0, 2, 3, 2, 4.748932),
    Sketcher.Constraint("DistanceY", 17, 2, 7, 2, 1.419379),
    Sketcher.Constraint("DistanceY", 15, 2, 17, 2, 1.837031),
])
pocket3 = doc.addObject("PartDesign::Pocket", "Pocket002")
body.addObject(pocket3)
pocket3.Profile = sketch5
pocket3.setExpression("Length", "Params.pocket3_length")

# Sketch on XZ plane
sketch6 = doc.addObject("Sketcher::SketchObject", "Sketch005")
body.addObject(sketch6)
sketch6.AttachmentSupport = (doc.XZ_Plane, [""])
sketch6.MapMode = "FlatFace"
sketch6.AttachmentOffset = App.Placement(App.Vector(0, 0, -0.5 * 25.4), App.Rotation())
sketch6.addGeometry([
    Part.Circle(App.Vector(-30.1625, -17.4625, 0), App.Vector(0, 0, 1), 3.937),
    Part.Circle(App.Vector(-30.1625, 17.4625, 0), App.Vector(0, 0, 1), 3.937),
    Part.Circle(App.Vector(49.2125, -17.4625, 0), App.Vector(0, 0, 1), 3.937),
    Part.Circle(App.Vector(49.2125, 17.4625, 0), App.Vector(0, 0, 1), 3.937),
], False)
sketch6.addConstraint([
    Sketcher.Constraint("Equal", 0, 1),
    Sketcher.Constraint("Equal", 1, 2),
    Sketcher.Constraint("Equal", 2, 3),
    Sketcher.Constraint("Symmetric", 0, 3, 1, 3, -1),
    Sketcher.Constraint("Symmetric", 2, 3, 3, 3, -1),
    Sketcher.Constraint("Horizontal", 0, 3, 2, 3),
    Sketcher.Constraint("Diameter", 0, Q("0.31 in")),
    Sketcher.Constraint("DistanceX", 0, 3, -1, 1, Q("1.1875 in")),
    Sketcher.Constraint("DistanceY", 0, 3, -1, 1, Q("0.6875 in")),
    Sketcher.Constraint("DistanceX", -1, 1, 2, 3, Q("1.9375 in")),
])
sketch6.setExpression("Constraints[6]", "Params.sketch6_diameter")
pocket4 = doc.addObject("PartDesign::Pocket", "Pocket003")
body.addObject(pocket4)
pocket4.Profile = sketch6
pocket4.setExpression("Length", "Params.pocket4_length")
pocket4.Reversed = True

doc.recompute()
